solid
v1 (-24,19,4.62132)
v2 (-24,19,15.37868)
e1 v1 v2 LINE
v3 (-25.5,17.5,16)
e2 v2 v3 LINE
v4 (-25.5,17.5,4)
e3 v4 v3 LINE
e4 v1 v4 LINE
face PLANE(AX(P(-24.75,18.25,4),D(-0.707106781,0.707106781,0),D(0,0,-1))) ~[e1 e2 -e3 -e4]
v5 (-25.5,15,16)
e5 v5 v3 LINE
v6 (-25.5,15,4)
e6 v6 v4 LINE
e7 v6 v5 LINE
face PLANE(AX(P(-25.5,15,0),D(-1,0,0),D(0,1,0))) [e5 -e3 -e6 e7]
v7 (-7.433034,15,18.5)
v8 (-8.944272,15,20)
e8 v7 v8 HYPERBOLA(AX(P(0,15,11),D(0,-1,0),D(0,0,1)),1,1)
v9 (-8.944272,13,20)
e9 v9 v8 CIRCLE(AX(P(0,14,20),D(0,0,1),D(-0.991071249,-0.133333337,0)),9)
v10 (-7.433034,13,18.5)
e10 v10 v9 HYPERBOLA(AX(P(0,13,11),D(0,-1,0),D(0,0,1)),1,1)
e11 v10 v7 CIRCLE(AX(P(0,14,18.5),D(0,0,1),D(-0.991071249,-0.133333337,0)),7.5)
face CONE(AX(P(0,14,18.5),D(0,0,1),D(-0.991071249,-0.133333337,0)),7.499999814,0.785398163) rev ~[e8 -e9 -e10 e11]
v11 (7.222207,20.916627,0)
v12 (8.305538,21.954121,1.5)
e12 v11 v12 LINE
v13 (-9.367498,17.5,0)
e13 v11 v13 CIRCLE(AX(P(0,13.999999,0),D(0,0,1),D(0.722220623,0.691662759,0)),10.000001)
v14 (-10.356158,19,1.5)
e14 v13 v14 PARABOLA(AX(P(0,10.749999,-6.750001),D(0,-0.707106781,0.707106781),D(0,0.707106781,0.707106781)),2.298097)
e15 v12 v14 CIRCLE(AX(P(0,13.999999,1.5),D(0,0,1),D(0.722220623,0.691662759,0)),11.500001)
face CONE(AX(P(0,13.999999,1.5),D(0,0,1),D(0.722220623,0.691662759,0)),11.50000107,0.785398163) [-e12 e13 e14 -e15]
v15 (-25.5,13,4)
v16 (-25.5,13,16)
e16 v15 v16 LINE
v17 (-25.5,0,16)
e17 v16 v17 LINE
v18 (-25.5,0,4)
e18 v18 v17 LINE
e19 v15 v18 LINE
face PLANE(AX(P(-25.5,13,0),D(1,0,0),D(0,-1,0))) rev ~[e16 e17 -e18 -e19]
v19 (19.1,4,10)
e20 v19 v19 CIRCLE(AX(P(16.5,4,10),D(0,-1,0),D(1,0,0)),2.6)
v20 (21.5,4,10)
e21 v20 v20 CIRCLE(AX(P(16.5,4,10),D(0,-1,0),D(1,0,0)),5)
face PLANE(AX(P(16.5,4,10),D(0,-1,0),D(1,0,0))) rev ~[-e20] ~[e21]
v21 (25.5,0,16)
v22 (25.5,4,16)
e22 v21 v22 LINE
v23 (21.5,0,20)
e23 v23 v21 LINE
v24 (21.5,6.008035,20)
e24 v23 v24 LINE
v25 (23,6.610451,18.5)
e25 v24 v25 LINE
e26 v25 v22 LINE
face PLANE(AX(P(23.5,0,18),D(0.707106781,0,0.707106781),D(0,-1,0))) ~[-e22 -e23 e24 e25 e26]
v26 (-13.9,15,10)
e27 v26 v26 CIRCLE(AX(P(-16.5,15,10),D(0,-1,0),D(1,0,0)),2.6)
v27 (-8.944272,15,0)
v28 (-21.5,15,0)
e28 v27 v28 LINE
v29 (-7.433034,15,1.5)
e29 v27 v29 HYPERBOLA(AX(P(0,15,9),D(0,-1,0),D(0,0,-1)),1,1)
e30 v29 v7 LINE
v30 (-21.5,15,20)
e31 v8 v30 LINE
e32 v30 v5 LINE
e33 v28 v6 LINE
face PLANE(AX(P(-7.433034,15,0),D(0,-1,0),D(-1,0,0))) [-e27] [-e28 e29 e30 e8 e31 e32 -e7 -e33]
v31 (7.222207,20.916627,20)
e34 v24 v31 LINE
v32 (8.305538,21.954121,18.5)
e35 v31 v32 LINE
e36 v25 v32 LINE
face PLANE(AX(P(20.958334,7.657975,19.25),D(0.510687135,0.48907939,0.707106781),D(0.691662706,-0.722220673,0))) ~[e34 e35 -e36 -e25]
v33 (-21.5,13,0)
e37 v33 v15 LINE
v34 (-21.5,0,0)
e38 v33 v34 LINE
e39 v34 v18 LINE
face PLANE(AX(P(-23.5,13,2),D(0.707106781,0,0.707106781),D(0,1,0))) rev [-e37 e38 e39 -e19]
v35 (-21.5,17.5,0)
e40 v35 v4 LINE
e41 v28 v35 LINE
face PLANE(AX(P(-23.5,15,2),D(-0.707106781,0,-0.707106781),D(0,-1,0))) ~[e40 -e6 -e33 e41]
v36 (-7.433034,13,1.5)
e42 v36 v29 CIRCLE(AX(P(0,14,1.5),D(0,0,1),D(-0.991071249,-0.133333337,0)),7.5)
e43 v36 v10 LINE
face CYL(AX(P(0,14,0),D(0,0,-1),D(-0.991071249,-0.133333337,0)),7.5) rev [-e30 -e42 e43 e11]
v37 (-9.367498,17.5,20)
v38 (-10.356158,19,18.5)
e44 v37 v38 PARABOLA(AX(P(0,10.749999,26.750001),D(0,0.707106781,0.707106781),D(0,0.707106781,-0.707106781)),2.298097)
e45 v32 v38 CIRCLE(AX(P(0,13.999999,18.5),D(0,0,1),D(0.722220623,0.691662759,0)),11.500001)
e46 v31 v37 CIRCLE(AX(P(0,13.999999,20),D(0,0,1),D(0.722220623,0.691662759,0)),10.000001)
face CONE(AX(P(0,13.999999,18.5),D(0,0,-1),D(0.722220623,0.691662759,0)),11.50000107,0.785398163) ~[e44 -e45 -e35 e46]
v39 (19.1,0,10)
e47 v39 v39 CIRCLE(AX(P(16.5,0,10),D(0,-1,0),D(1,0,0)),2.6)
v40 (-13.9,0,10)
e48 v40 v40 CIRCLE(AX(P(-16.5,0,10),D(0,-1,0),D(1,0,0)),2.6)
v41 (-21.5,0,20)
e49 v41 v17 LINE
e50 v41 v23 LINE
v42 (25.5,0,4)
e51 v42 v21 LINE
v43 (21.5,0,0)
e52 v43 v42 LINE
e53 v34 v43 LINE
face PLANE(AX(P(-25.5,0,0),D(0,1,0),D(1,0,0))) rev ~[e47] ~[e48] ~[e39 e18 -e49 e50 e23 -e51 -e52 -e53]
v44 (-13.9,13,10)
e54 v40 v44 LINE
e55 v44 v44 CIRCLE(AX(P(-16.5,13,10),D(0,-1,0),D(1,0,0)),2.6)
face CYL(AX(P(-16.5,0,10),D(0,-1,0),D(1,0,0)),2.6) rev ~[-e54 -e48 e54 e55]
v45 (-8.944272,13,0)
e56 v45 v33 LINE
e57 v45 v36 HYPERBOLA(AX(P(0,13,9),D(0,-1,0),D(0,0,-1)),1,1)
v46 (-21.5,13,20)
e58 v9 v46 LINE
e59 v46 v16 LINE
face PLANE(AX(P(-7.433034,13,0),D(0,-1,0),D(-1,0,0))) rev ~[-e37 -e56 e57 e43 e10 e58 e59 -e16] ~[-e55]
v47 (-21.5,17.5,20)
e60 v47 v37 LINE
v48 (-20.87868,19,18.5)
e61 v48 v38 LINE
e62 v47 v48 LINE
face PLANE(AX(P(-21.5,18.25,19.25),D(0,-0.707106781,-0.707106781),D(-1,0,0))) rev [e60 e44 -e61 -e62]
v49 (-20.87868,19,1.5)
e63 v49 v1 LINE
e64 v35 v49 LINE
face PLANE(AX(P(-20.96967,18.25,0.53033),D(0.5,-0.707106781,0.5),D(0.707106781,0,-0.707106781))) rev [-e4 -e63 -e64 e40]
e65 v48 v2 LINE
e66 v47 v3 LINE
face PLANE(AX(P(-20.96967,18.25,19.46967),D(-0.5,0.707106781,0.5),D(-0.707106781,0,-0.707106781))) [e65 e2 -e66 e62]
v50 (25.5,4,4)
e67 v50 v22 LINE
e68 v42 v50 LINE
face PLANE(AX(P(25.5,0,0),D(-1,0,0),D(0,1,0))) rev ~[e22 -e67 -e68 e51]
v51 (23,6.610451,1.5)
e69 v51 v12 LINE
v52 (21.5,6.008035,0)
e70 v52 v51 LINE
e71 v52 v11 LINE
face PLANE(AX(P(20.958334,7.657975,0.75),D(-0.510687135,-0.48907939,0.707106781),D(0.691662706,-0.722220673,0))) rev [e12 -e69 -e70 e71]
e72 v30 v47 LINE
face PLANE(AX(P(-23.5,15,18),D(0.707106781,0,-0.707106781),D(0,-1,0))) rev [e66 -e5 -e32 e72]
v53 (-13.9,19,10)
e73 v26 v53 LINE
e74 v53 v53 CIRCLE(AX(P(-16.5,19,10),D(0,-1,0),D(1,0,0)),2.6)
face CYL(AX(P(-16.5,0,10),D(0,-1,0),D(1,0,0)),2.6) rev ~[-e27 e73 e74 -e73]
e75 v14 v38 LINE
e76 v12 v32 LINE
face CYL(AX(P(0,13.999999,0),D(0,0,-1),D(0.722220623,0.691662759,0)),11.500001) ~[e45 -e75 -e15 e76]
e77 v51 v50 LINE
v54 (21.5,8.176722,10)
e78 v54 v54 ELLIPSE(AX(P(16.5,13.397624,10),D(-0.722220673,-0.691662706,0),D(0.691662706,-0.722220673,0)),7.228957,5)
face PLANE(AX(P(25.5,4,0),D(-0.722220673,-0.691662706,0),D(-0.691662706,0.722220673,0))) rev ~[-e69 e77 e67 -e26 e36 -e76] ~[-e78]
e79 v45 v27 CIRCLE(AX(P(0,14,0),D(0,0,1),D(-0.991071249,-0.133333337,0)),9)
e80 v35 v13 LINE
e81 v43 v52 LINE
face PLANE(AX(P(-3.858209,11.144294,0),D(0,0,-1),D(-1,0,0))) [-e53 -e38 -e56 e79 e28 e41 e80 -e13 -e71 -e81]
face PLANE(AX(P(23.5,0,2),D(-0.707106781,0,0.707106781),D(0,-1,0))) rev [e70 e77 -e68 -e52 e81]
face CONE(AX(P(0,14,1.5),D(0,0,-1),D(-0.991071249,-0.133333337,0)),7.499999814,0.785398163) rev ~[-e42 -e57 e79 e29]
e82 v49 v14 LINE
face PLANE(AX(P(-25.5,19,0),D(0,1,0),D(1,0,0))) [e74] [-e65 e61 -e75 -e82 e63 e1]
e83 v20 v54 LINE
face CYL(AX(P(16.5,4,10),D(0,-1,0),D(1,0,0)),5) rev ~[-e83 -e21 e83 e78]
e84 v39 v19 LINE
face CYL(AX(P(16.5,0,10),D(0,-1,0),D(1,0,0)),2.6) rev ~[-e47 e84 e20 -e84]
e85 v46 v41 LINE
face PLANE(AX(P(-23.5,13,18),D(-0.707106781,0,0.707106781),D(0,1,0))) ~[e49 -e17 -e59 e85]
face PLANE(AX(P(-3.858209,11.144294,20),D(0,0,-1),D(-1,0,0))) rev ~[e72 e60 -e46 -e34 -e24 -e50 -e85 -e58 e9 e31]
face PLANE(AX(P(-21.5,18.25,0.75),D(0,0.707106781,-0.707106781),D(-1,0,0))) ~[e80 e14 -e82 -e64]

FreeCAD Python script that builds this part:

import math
import FreeCAD as App
import Part
import Sketcher


def edges_at(feature, points):
    """Names of the edges that pass closest to the given points."""
    edges = feature.Shape.Edges
    near = lambda p: min(range(len(edges)), key=lambda i: edges[i].distToShape(Part.Vertex(*p))[0])
    return sorted({f"Edge{near(p) + 1}" for p in points})

doc = App.newDocument("Part")
body = doc.addObject("PartDesign::Body", "Body")

sketch1 = doc.addObject("Sketcher::SketchObject", "Sketch")
body.addObject(sketch1)
sketch1.AttachmentSupport = (doc.XY_Plane, [""])
sketch1.MapMode = "FlatFace"
sketch1.addGeometry([
    Part.ArcOfCircle(Part.Circle(App.Vector(0, 14, 0), App.Vector(0, 0, 1), 7.5), math.radians(-172), math.radians(172)),
    Part.LineSegment(App.Vector(-7.4, 13, 0), App.Vector(-25.5, 13, 0)),
    Part.LineSegment(App.Vector(-25.5, 13, 0), App.Vector(-25.5, 0, 0)),
    Part.LineSegment(App.Vector(-25.5, 0, 0), App.Vector(25.5, 0, 0)),
    Part.LineSegment(App.Vector(25.5, 0, 0), App.Vector(25.5, 4, 0)),
    Part.LineSegment(App.Vector(25.5, 4, 0), App.Vector(8.3, 22, 0)),
    Part.ArcOfCircle(Part.Circle(App.Vector(0, 14, 0), App.Vector(0, 0, 1), 11.5), math.radians(44), math.radians(154)),
    Part.LineSegment(App.Vector(-10.4, 19, 0), App.Vector(-25.5, 19, 0)),
    Part.LineSegment(App.Vector(-25.5, 19, 0), App.Vector(-25.5, 15, 0)),
    Part.LineSegment(App.Vector(-25.5, 15, 0), App.Vector(-7.4, 15, 0)),
], False)
sketch1.addConstraint([
    Sketcher.Constraint("Coincident", 0, 1, 1, 1),
    Sketcher.Constraint("Coincident", 1, 2, 2, 1),
    Sketcher.Constraint("Coincident", 2, 2, 3, 1),
    Sketcher.Constraint("Coincident", 3, 2, 4, 1),
    Sketcher.Constraint("Coincident", 4, 2, 5, 1),
    Sketcher.Constraint("Tangent", 5, 2, 6, 1),
    Sketcher.Constraint("Coincident", 6, 2, 7, 1),
    Sketcher.Constraint("Coincident", 7, 2, 8, 1),
    Sketcher.Constraint("Coincident", 8, 2, 9, 1),
    Sketcher.Constraint("Coincident", 9, 2, 0, 2),
    Sketcher.Constraint("Horizontal", 1),
    Sketcher.Constraint("Vertical", 2),
    Sketcher.Constraint("Horizontal", 3),
    Sketcher.Constraint("Vertical", 4),
    Sketcher.Constraint("Horizontal", 7),
    Sketcher.Constraint("Vertical", 8),
    Sketcher.Constraint("Horizontal", 9),
    Sketcher.Constraint("Coincident", 6, 3, 0, 3),
    Sketcher.Constraint("Symmetric", 2, 2, 3, 2, -1, 1),
    Sketcher.Constraint("PointOnObject", 0, 3, -2),
    Sketcher.Constraint("Vertical", 2, 2, 7, 2),
    Sketcher.Constraint("Vertical", 0, 1, 9, 2),
    Sketcher.Constraint("Equal", 4, 8),
    Sketcher.Constraint("Radius", 0, 7.5),
    Sketcher.Constraint("Radius", 6, 11.500001),
    Sketcher.Constraint("DistanceX", 3, 1, 3, 2, 51.0),
    Sketcher.Constraint("DistanceY", 2, 2, 2, 1, 13.0),
    Sketcher.Constraint("DistanceY", 4, 1, 4, 2, 4.0),
    Sketcher.Constraint("DistanceY", -1, 1, 0, 3, 14.0),
])
pad1 = doc.addObject("PartDesign::Pad", "Pad")
body.addObject(pad1)
pad1.Profile = sketch1
pad1.Length = 20

sketch2 = doc.addObject("Sketcher::SketchObject", "Sketch001")
body.addObject(sketch2)
sketch2.AttachmentSupport = (doc.XZ_Plane, [""])
sketch2.MapMode = "FlatFace"
sketch2.addGeometry([
    Part.Circle(App.Vector(-16.5, 10, 0), App.Vector(0, 0, 1), 2.6),
    Part.Circle(App.Vector(16.5, 10, 0), App.Vector(0, 0, 1), 2.6),
], False)
sketch2.addConstraint([
    Sketcher.Constraint("Equal", 0, 1),
    Sketcher.Constraint("Symmetric", 0, 3, 1, 3, -2),
    Sketcher.Constraint("Diameter", 0, 5.2),
    Sketcher.Constraint("DistanceY", -1, 1, 0, 3, 10.0),
    Sketcher.Constraint("DistanceX", 0, 3, 1, 3, 33.0),
])
pocket1 = doc.addObject("PartDesign::Pocket", "Pocket")
body.addObject(pocket1)
pocket1.Profile = sketch2
pocket1.Type = "ThroughAll"

sketch3 = doc.addObject("Sketcher::SketchObject", "Sketch002")
body.addObject(sketch3)
sketch3.AttachmentSupport = (doc.XZ_Plane, [""])
sketch3.MapMode = "FlatFace"
sketch3.AttachmentOffset = App.Placement(App.Vector(0, 0, -4), App.Rotation())
sketch3.addGeometry(Part.Circle(App.Vector(16, 10, 0), App.Vector(0, 0, 1), 5), False)
sketch3.addConstraint([
    Sketcher.Constraint("Diameter", 0, 10.0),
    Sketcher.Constraint("DistanceY", -1, 1, 0, 3, 10.0),
    Sketcher.Constraint("DistanceX", -1, 1, 0, 3, 16.5),
])
pocket2 = doc.addObject("PartDesign::Pocket", "Pocket001")
body.addObject(pocket2)
pocket2.Profile = sketch3
pocket2.Type = "ThroughAll"
doc.recompute()

chamfer = doc.addObject("PartDesign::Chamfer", "Chamfer")
body.addObject(chamfer)
chamfer.Base = (pocket2, edges_at(pocket2, [
    (-25.5, 17, 20),
    (-25.5, 6.5, 20),
    (-25.5, 17, 0),
    (-25.5, 6.5, 0),
    (25.5, 2, 20),
    (25.5, 2, 0),
]))
chamfer.Size = 4
doc.recompute()

chamfer2 = doc.addObject("PartDesign::Chamfer", "Chamfer001")
body.addObject(chamfer2)
chamfer2.Base = (chamfer, edges_at(chamfer, [
    (7.5, 14, 20),
    (7.5, 14, 0),
    (-1.798, 25.359, 20),
    (-15.928, 19, 20),
    (-23.5, 19, 18),
    (-25.5, 19, 10),
    (-23.5, 19, 2),
    (-15.928, 19, 0),
    (-1.798, 25.359, 0),
    (14.903, 15.065, 20),
    (14.903, 15.065, 0),
]))
chamfer2.Size = 1.5

doc.recompute()
